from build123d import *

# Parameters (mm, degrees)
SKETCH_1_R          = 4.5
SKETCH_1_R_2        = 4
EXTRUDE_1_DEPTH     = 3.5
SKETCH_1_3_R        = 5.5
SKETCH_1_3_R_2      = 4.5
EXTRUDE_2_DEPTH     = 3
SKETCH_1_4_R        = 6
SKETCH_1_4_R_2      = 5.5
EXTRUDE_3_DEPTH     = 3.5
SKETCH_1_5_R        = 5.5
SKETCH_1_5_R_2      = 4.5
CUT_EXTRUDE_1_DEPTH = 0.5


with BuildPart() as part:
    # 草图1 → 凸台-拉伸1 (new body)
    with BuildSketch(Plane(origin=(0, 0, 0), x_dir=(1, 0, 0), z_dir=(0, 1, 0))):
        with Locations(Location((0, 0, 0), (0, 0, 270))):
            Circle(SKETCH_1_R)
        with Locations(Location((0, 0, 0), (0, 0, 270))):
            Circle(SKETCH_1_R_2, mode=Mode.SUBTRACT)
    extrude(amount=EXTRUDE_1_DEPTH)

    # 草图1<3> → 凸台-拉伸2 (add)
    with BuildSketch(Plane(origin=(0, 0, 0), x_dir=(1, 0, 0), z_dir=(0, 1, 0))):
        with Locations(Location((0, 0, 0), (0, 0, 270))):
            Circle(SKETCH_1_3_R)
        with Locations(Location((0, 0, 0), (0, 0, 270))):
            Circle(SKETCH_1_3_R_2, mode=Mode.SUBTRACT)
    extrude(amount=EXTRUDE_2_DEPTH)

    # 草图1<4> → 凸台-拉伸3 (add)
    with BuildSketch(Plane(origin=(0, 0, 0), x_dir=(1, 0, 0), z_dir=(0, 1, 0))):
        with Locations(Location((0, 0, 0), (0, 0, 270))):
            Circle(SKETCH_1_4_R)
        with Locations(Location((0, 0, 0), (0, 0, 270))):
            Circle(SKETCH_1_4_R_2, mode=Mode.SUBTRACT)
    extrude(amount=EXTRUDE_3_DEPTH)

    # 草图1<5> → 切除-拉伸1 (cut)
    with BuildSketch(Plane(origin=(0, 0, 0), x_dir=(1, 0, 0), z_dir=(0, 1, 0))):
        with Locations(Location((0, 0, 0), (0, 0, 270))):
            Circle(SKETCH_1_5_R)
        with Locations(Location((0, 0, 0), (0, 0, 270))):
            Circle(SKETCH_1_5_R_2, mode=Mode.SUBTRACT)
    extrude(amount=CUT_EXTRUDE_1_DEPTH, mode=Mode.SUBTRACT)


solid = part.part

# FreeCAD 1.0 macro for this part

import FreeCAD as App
import Part
import Sketcher

doc = App.newDocument("Part")
body = doc.addObject("PartDesign::Body", "Body")

# Sketch on XZ plane
sketch1 = body.newObject("Sketcher::SketchObject", "Sketch")
sketch1.AttachmentSupport = (doc.getObject("XZ_Plane"), [""])
sketch1.MapMode = "FlatFace"
sketch1.addGeometry(Part.Circle(App.Vector(0, 0, 0), App.Vector(0, 0, 1), 4.5), False)
sketch1.addGeometry(Part.Circle(App.Vector(0, 0, 0), App.Vector(0, 0, 1), 4), False)
sketch1.addConstraint(Sketcher.Constraint("Coincident", 0, 3, -1, 1))
sketch1.addConstraint(Sketcher.Constraint("Coincident", 1, 3, -1, 1))
sketch1.addConstraint(Sketcher.Constraint("Diameter", 0, 9.0))
sketch1.addConstraint(Sketcher.Constraint("Diameter", 1, 8.0))
pad1 = body.newObject("PartDesign::Pad", "Pad")
pad1.Profile = sketch1
pad1.Length = 3.5
pad1.Reversed = True

# Sketch on XZ plane
sketch2 = body.newObject("Sketcher::SketchObject", "Sketch001")
sketch2.AttachmentSupport = (doc.getObject("XZ_Plane"), [""])
sketch2.MapMode = "FlatFace"
sketch2.addGeometry(Part.Circle(App.Vector(0, 0, 0), App.Vector(0, 0, 1), 5.5), False)
sketch2.addGeometry(Part.Circle(App.Vector(0, 0, 0), App.Vector(0, 0, 1), 4.5), False)
sketch2.addConstraint(Sketcher.Constraint("Coincident", 0, 3, -1, 1))
sketch2.addConstraint(Sketcher.Constraint("Coincident", 1, 3, -1, 1))
sketch2.addConstraint(Sketcher.Constraint("Diameter", 0, 11.0))
sketch2.addConstraint(Sketcher.Constraint("Diameter", 1, 9.0))
pad2 = body.newObject("PartDesign::Pad", "Pad001")
pad2.Profile = sketch2
pad2.Length = 3
pad2.Reversed = True

# Sketch on XZ plane
sketch3 = body.newObject("Sketcher::SketchObject", "Sketch002")
sketch3.AttachmentSupport = (doc.getObject("XZ_Plane"), [""])
sketch3.MapMode = "FlatFace"
sketch3.addGeometry(Part.Circle(App.Vector(0, 0, 0), App.Vector(0, 0, 1), 6), False)
sketch3.addGeometry(Part.Circle(App.Vector(0, 0, 0), App.Vector(0, 0, 1), 6), False)
sketch3.addConstraint(Sketcher.Constraint("Coincident", 0, 3, -1, 1))
sketch3.addConstraint(Sketcher.Constraint("Coincident", 1, 3, -1, 1))
sketch3.addConstraint(Sketcher.Constraint("Diameter", 0, 12.0))
sketch3.addConstraint(Sketcher.Constraint("Diameter", 1, 11.0))
pad3 = body.newObject("PartDesign::Pad", "Pad002")
pad3.Profile = sketch3
pad3.Length = 3.5
pad3.Reversed = True

# Sketch on XZ plane
sketch4 = body.newObject("Sketcher::SketchObject", "Sketch003")
sketch4.AttachmentSupport = (doc.getObject("XZ_Plane"), [""])
sketch4.MapMode = "FlatFace"
sketch4.addGeometry(Part.Circle(App.Vector(0, 0, 0), App.Vector(0, 0, 1), 5.5), False)
sketch4.addGeometry(Part.Circle(App.Vector(0, 0, 0), App.Vector(0, 0, 1), 4.5), False)
sketch4.addConstraint(Sketcher.Constraint("Coincident", 0, 3, -1, 1))
sketch4.addConstraint(Sketcher.Constraint("Coincident", 1, 3, -1, 1))
sketch4.addConstraint(Sketcher.Constraint("Diameter", 0, 11.0))
sketch4.addConstraint(Sketcher.Constraint("Diameter", 1, 9.0))
pocket1 = body.newObject("PartDesign::Pocket", "Pocket")
pocket1.Profile = sketch4
pocket1.Length = 0.5

doc.recompute()
